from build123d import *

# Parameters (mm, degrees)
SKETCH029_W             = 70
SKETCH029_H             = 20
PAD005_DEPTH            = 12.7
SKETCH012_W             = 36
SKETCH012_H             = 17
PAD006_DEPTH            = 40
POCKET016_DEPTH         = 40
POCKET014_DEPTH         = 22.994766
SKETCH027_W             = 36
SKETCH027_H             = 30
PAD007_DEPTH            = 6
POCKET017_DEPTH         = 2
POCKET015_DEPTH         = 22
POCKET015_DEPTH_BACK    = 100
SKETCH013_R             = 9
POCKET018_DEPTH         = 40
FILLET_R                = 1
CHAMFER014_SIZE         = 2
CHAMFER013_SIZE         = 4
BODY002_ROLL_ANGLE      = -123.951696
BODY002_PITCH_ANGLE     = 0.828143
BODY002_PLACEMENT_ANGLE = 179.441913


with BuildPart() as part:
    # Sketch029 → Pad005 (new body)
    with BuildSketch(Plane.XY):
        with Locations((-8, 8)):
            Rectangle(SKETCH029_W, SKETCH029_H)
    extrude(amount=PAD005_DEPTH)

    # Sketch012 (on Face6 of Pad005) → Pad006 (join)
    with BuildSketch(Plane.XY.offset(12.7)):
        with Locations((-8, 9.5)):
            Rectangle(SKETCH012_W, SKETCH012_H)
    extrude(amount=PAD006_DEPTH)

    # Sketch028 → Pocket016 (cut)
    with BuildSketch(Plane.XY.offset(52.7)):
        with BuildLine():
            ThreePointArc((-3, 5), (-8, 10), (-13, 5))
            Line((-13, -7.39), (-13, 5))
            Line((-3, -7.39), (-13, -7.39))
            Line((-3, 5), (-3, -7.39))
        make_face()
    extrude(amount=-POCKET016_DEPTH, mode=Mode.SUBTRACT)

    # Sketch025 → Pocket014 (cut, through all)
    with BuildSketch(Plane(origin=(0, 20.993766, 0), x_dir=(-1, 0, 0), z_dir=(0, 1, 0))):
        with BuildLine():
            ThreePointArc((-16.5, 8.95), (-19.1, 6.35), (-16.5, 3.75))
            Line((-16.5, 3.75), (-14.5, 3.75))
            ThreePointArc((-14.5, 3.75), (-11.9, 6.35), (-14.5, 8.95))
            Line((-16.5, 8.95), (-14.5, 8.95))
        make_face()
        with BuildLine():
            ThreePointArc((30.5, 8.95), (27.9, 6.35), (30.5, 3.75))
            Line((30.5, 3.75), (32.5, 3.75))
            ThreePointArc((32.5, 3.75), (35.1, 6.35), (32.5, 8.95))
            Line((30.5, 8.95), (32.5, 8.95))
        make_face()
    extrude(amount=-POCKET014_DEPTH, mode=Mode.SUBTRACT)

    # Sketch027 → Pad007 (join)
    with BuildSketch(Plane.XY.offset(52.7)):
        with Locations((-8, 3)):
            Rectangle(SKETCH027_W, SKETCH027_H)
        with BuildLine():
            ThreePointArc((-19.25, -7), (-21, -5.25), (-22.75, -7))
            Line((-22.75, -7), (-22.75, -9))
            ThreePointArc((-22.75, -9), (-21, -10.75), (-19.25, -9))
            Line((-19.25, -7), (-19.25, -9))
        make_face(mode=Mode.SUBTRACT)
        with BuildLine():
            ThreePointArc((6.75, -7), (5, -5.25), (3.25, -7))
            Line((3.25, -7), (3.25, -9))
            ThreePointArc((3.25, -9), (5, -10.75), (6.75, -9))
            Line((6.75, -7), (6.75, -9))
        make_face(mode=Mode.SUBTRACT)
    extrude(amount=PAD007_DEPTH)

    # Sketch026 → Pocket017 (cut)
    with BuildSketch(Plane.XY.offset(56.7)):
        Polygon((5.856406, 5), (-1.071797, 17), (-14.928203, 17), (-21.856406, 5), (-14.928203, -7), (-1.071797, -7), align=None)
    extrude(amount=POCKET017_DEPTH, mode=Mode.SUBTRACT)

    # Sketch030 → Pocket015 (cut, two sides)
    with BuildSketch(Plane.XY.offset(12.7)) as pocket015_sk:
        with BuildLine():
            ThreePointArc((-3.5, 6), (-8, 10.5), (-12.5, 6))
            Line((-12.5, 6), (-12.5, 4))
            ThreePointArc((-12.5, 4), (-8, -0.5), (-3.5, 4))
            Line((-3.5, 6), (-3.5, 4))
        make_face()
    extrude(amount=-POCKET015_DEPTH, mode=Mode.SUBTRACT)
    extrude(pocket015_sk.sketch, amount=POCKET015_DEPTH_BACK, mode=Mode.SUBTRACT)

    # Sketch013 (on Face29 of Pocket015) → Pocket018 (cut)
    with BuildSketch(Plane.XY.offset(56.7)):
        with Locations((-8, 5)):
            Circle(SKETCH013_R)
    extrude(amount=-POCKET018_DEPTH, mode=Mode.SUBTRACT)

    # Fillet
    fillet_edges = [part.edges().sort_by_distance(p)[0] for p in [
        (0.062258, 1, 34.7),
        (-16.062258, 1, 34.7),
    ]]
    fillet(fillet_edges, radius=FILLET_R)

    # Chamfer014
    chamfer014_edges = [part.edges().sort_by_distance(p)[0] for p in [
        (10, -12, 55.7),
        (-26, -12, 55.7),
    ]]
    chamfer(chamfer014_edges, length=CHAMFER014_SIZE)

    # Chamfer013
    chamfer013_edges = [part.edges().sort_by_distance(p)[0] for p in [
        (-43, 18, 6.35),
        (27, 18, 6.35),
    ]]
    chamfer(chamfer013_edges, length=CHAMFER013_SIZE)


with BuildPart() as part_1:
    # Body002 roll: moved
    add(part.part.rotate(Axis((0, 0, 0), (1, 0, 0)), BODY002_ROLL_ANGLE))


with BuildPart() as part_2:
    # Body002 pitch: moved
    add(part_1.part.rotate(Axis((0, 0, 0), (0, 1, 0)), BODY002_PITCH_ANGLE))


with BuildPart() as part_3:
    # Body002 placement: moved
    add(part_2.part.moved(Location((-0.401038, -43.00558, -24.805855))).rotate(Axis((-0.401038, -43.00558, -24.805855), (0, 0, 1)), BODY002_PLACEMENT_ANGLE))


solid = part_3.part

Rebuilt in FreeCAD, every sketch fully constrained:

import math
import FreeCAD as App
import Part
import Sketcher
Q = App.Units.Quantity


def edges_at(feature, points):
    """Names of the edges that pass closest to the given points."""
    edges = feature.Shape.Edges
    near = lambda p: min(range(len(edges)), key=lambda i: edges[i].distToShape(Part.Vertex(*p))[0])
    return sorted({f"Edge{near(p) + 1}" for p in points})


def add_polygon(sketch, points):
    """Adds a closed chain of lines whose ends are joined by coincident constraints."""
    first, n = sketch.GeometryCount, len(points)
    for a, b in zip(points, points[1:] + points[:1]):
        sketch.addGeometry(Part.LineSegment(App.Vector(*a, 0), App.Vector(*b, 0)), False)
    for i in range(n):
        sketch.addConstraint(Sketcher.Constraint("Coincident", first + i, 2, first + (i + 1) % n, 1))

doc = App.newDocument("Part")
params = doc.addObject("Spreadsheet::Sheet", "Params")
for row, (alias, value) in enumerate([
    ("sketch1_width", "70 mm"),
    ("sketch1_height", "20 mm"),
    ("pad1_length", "12.7 mm"),
    ("sketch2_width", "36 mm"),
    ("sketch2_height", "17 mm"),
    ("pad2_length", "40 mm"),
    ("sketch3_radius", "5 mm"),
    ("sketch3_height", "12.39 mm"),
    ("pocket1_length", "40 mm"),
    ("sketch4_radius", "2.6 mm"),
    ("sketch4_width", "2 mm"),
    ("sketch5_width", "36 mm"),
    ("sketch5_height", "30 mm"),
    ("sketch5_height2", "2 mm"),
    ("sketch5_radius", "1.75 mm"),
    ("pad3_length", "6 mm"),
    ("pocket3_length", "2 mm"),
    ("sketch7_radius", "4.5 mm"),
    ("sketch7_height", "2 mm"),
    ("sketch8_diameter", "18 mm"),
    ("pocket5_length", "40 mm"),
    ("fillet_radius", "1 mm"),
    ("chamfer_size", "2 mm"),
    ("chamfer2_size", "4 mm"),
], start=1):
    params.set(f"A{row}", alias)
    params.set(f"B{row}", "=" + value)
    params.setAlias(f"B{row}", alias)

body = doc.addObject("PartDesign::Body", "Body")

# Sketch on XY plane
sketch1 = body.newObject("Sketcher::SketchObject", "Sketch")
sketch1.AttachmentSupport = (doc.getObject("XY_Plane"), [""])
sketch1.MapMode = "FlatFace"
add_polygon(sketch1, [(-43, 18), (-43, -2), (27, -2), (27, 18)])  # lines 0-3
sketch1.addConstraint([
    Sketcher.Constraint("Vertical", 0),
    Sketcher.Constraint("Horizontal", 1),
    Sketcher.Constraint("Vertical", 2),
    Sketcher.Constraint("Horizontal", 3),
    Sketcher.Constraint("DistanceX", 1, 1, 1, 2, 70.0),
    Sketcher.Constraint("DistanceY", 0, 2, 0, 1, 20.0),
    Sketcher.Constraint("DistanceX", 0, 2, -1, 1, 43.0),
    Sketcher.Constraint("DistanceY", 0, 2, -1, 1, 2.0),
])
sketch1.setExpression("Constraints[8]", "Params.sketch1_width")
sketch1.setExpression("Constraints[9]", "Params.sketch1_height")
pad1 = body.newObject("PartDesign::Pad", "Pad")
pad1.Profile = sketch1
pad1.setExpression("Length", "Params.pad1_length")

# Sketch on XY plane
sketch2 = body.newObject("Sketcher::SketchObject", "Sketch001")
sketch2.AttachmentSupport = (doc.getObject("XY_Plane"), [""])
sketch2.MapMode = "FlatFace"
sketch2.AttachmentOffset = App.Placement(App.Vector(0, 0, 12.7), App.Rotation())
add_polygon(sketch2, [(-26, 18), (-26, 1), (10, 1), (10, 18)])  # lines 0-3
sketch2.addConstraint([
    Sketcher.Constraint("Vertical", 0),
    Sketcher.Constraint("Horizontal", 1),
    Sketcher.Constraint("Vertical", 2),
    Sketcher.Constraint("Horizontal", 3),
    Sketcher.Constraint("DistanceX", 1, 1, 1, 2, 36.0),
    Sketcher.Constraint("DistanceY", 0, 2, 0, 1, 17.0),
    Sketcher.Constraint("DistanceX", 0, 2, -1, 1, 26.0),
    Sketcher.Constraint("DistanceY", -1, 1, 0, 2, 1.0),
])
sketch2.setExpression("Constraints[8]", "Params.sketch2_width")
sketch2.setExpression("Constraints[9]", "Params.sketch2_height")
pad2 = body.newObject("PartDesign::Pad", "Pad001")
pad2.Profile = sketch2
pad2.setExpression("Length", "Params.pad2_length")

# Sketch on XY plane
sketch3 = body.newObject("Sketcher::SketchObject", "Sketch002")
sketch3.AttachmentSupport = (doc.getObject("XY_Plane"), [""])
sketch3.MapMode = "FlatFace"
sketch3.AttachmentOffset = App.Placement(App.Vector(0, 0, 52.7), App.Rotation())
sketch3.addGeometry([
    Part.ArcOfCircle(Part.Circle(App.Vector(-8, 5, 0), App.Vector(0, 0, 1), 5), math.radians(0), math.radians(180)),
    Part.LineSegment(App.Vector(-13, 5, 0), App.Vector(-13, -7, 0)),
    Part.LineSegment(App.Vector(-13, -7, 0), App.Vector(-3, -7, 0)),
    Part.LineSegment(App.Vector(-3, -7, 0), App.Vector(-3, 5, 0)),
], False)
sketch3.addConstraint([
    Sketcher.Constraint("Tangent", 0, 2, 1, 1),
    Sketcher.Constraint("Coincident", 1, 2, 2, 1),
    Sketcher.Constraint("Coincident", 2, 2, 3, 1),
    Sketcher.Constraint("Tangent", 3, 2, 0, 1),
    Sketcher.Constraint("Vertical", 1),
    Sketcher.Constraint("Horizontal", 2),
    Sketcher.Constraint("Vertical", 3),
    Sketcher.Constraint("Radius", 0, 5.0),
    Sketcher.Constraint("DistanceX", 0, 3, -1, 1, 8.0),
    Sketcher.Constraint("DistanceY", -1, 1, 0, 3, 5.0),
    Sketcher.Constraint("DistanceY", 1, 2, 1, 1, 12.39),
])
sketch3.setExpression("Constraints[7]", "Params.sketch3_radius")
sketch3.setExpression("Constraints[10]", "Params.sketch3_height")
pocket1 = body.newObject("PartDesign::Pocket", "Pocket")
pocket1.Profile = sketch3
pocket1.setExpression("Length", "Params.pocket1_length")

# Sketch on XZ plane
sketch4 = body.newObject("Sketcher::SketchObject", "Sketch003")
sketch4.AttachmentSupport = (doc.getObject("XZ_Plane"), [""])
sketch4.MapMode = "FlatFace"
sketch4.AttachmentOffset = App.Placement(App.Vector(0, 0, -20.993766), App.Rotation())
sketch4.addGeometry([
    Part.ArcOfCircle(Part.Circle(App.Vector(16.5, 6.3, 0), App.Vector(0, 0, 1), 2.6), math.radians(-90), math.radians(90)),  # 0
    Part.LineSegment(App.Vector(16.5, 3.8, 0), App.Vector(14.5, 3.8, 0)),  # 1
    Part.ArcOfCircle(Part.Circle(App.Vector(14.5, 6.3, 0), App.Vector(0, 0, 1), 2.6), math.radians(90), math.radians(270)),  # 2
    Part.LineSegment(App.Vector(14.5, 8.9, 0), App.Vector(16.5, 8.9, 0)),  # 3
    Part.ArcOfCircle(Part.Circle(App.Vector(-30.5, 6.3, 0), App.Vector(0, 0, 1), 2.6), math.radians(-90), math.radians(90)),  # 4
    Part.LineSegment(App.Vector(-30.5, 3.8, 0), App.Vector(-32.5, 3.8, 0)),  # 5
    Part.ArcOfCircle(Part.Circle(App.Vector(-32.5, 6.3, 0), App.Vector(0, 0, 1), 2.6), math.radians(90), math.radians(270)),  # 6
    Part.LineSegment(App.Vector(-32.5, 8.9, 0), App.Vector(-30.5, 8.9, 0)),  # 7
], False)
sketch4.addConstraint([
    Sketcher.Constraint("Tangent", 0, 1, 1, 1),
    Sketcher.Constraint("Tangent", 1, 2, 2, 2),
    Sketcher.Constraint("Tangent", 2, 1, 3, 1),
    Sketcher.Constraint("Tangent", 3, 2, 0, 2),
    Sketcher.Constraint("Tangent", 4, 1, 5, 1),
    Sketcher.Constraint("Tangent", 5, 2, 6, 2),
    Sketcher.Constraint("Tangent", 6, 1, 7, 1),
    Sketcher.Constraint("Tangent", 7, 2, 4, 2),
    Sketcher.Constraint("Horizontal", 1),
    Sketcher.Constraint("Horizontal", 3),
    Sketcher.Constraint("Horizontal", 5),
    Sketcher.Constraint("Horizontal", 7),
    Sketcher.Constraint("Equal", 2, 4),
    Sketcher.Constraint("Horizontal", 2, 3, 4, 3),
    Sketcher.Constraint("Equal", 3, 5),
    Sketcher.Constraint("Radius", 0, 2.6),
    Sketcher.Constraint("DistanceX", 1, 2, 1, 1, 2.0),
    Sketcher.Constraint("DistanceX", 4, 3, 2, 3, 45.0),
    Sketcher.Constraint("DistanceX", -1, 1, 0, 3, 16.5),
    Sketcher.Constraint("DistanceY", -1, 1, 0, 3, 6.35),
])
sketch4.setExpression("Constraints[15]", "Params.sketch4_radius")
sketch4.setExpression("Constraints[16]", "Params.sketch4_width")
pocket2 = body.newObject("PartDesign::Pocket", "Pocket001")
pocket2.Profile = sketch4
pocket2.Type = "ThroughAll"
pocket2.Reversed = True

# Sketch on XY plane
sketch5 = body.newObject("Sketcher::SketchObject", "Sketch004")
sketch5.AttachmentSupport = (doc.getObject("XY_Plane"), [""])
sketch5.MapMode = "FlatFace"
sketch5.AttachmentOffset = App.Placement(App.Vector(0, 0, 52.7), App.Rotation())
add_polygon(sketch5, [(-26, 18), (-26, -12), (10, -12), (10, 18)])  # lines 0-3
sketch5.addGeometry(Part.ArcOfCircle(Part.Circle(App.Vector(-21, -7, 0), App.Vector(0, 0, 1), 1.8), math.radians(0), math.radians(180)), False)  # 4
sketch5.addGeometry(Part.LineSegment(App.Vector(-19.2, -7, 0), App.Vector(-19.2, -9, 0)), False)  # 5
sketch5.addGeometry(Part.ArcOfCircle(Part.Circle(App.Vector(-21, -9, 0), App.Vector(0, 0, 1), 1.8), math.radians(180), math.radians(360)), False)  # 6
sketch5.addGeometry(Part.LineSegment(App.Vector(-22.8, -9, 0), App.Vector(-22.8, -7, 0)), False)  # 7
sketch5.addGeometry(Part.ArcOfCircle(Part.Circle(App.Vector(5, -7, 0), App.Vector(0, 0, 1), 1.8), math.radians(0), math.radians(180)), False)  # 8
sketch5.addGeometry(Part.LineSegment(App.Vector(6.8, -7, 0), App.Vector(6.8, -9, 0)), False)  # 9
sketch5.addGeometry(Part.ArcOfCircle(Part.Circle(App.Vector(5, -9, 0), App.Vector(0, 0, 1), 1.8), math.radians(180), math.radians(360)), False)  # 10
sketch5.addGeometry(Part.LineSegment(App.Vector(3.2, -9, 0), App.Vector(3.2, -7, 0)), False)  # 11
sketch5.addConstraint([
    Sketcher.Constraint("Tangent", 4, 1, 5, 1),
    Sketcher.Constraint("Tangent", 5, 2, 6, 2),
    Sketcher.Constraint("Tangent", 6, 1, 7, 1),
    Sketcher.Constraint("Tangent", 7, 2, 4, 2),
    Sketcher.Constraint("Tangent", 8, 1, 9, 1),
    Sketcher.Constraint("Tangent", 9, 2, 10, 2),
    Sketcher.Constraint("Tangent", 10, 1, 11, 1),
    Sketcher.Constraint("Tangent", 11, 2, 8, 2),
    Sketcher.Constraint("Vertical", 0),
    Sketcher.Constraint("Horizontal", 1),
    Sketcher.Constraint("Vertical", 2),
    Sketcher.Constraint("Horizontal", 3),
    Sketcher.Constraint("Vertical", 5),
    Sketcher.Constraint("Vertical", 7),
    Sketcher.Constraint("Vertical", 9),
    Sketcher.Constraint("Vertical", 11),
    Sketcher.Constraint("Equal", 6, 8),
    Sketcher.Constraint("Horizontal", 4, 3, 8, 3),
    Sketcher.Constraint("Horizontal", 6, 3, 10, 3),
    Sketcher.Constraint("DistanceX", 1, 1, 1, 2, 36.0),
    Sketcher.Constraint("DistanceY", 0, 2, 0, 1, 30.0),
    Sketcher.Constraint("DistanceY", 5, 2, 5, 1, 2.0),
    Sketcher.Constraint("Radius", 4, 1.75),
    Sketcher.Constraint("DistanceX", 4, 3, -1, 1, 21.0),
    Sketcher.Constraint("DistanceY", 4, 3, -1, 1, 7.0),
    Sketcher.Constraint("DistanceX", -1, 1, 8, 3, 5.0),
    Sketcher.Constraint("DistanceX", 0, 2, -1, 1, 26.0),
    Sketcher.Constraint("DistanceY", 0, 2, -1, 1, 12.0),
])
sketch5.setExpression("Constraints[23]", "Params.sketch5_width")
sketch5.setExpression("Constraints[24]", "Params.sketch5_height")
sketch5.setExpression("Constraints[25]", "Params.sketch5_height2")
sketch5.setExpression("Constraints[26]", "Params.sketch5_radius")
pad3 = body.newObject("PartDesign::Pad", "Pad002")
pad3.Profile = sketch5
pad3.setExpression("Length", "Params.pad3_length")

# Sketch on XY plane
sketch6 = body.newObject("Sketcher::SketchObject", "Sketch005")
sketch6.AttachmentSupport = (doc.getObject("XY_Plane"), [""])
sketch6.MapMode = "FlatFace"
sketch6.AttachmentOffset = App.Placement(App.Vector(0, 0, 56.7), App.Rotation())
add_polygon(sketch6, [(6, 5), (-1, 17), (-15, 17), (-22, 5), (-15, -7), (-1, -7)])  # lines 0-5
sketch6.addConstraint([
    Sketcher.Constraint("Horizontal", 1),
    Sketcher.Constraint("Horizontal", 4),
    Sketcher.Constraint("Parallel", 0, 3),
    Sketcher.Constraint("Parallel", 2, 5),
    Sketcher.Constraint("Horizontal", 2, 2, 5, 2),
    Sketcher.Constraint("Vertical", 1, 2, 3, 2),
    Sketcher.Constraint("Vertical", 0, 2, 4, 2),
    Sketcher.Constraint("Angle", 0, Q("119.999999 deg")),
    Sketcher.Constraint("DistanceY", -1, 1, 0, 2, 17.0),
    Sketcher.Constraint("DistanceY", -1, 1, 2, 2, 5.0),
    Sketcher.Constraint("DistanceX", 1, 2, 1, 1, 13.856406),
    Sketcher.Constraint("DistanceX", 0, 2, -1, 1, 1.071797),
])
pocket3 = body.newObject("PartDesign::Pocket", "Pocket002")
pocket3.Profile = sketch6
pocket3.setExpression("Length", "Params.pocket3_length")
pocket3.Reversed = True

# Sketch on XY plane
sketch7 = body.newObject("Sketcher::SketchObject", "Sketch006")
sketch7.AttachmentSupport = (doc.getObject("XY_Plane"), [""])
sketch7.MapMode = "FlatFace"
sketch7.AttachmentOffset = App.Placement(App.Vector(0, 0, 12.7), App.Rotation())
sketch7.addGeometry([
    Part.ArcOfCircle(Part.Circle(App.Vector(-8, 6, 0), App.Vector(0, 0, 1), 4.5), math.radians(0), math.radians(180)),
    Part.LineSegment(App.Vector(-12.5, 6, 0), App.Vector(-12.5, 4, 0)),
    Part.ArcOfCircle(Part.Circle(App.Vector(-8, 4, 0), App.Vector(0, 0, 1), 4.5), math.radians(180), math.radians(360)),
    Part.LineSegment(App.Vector(-3.5, 4, 0), App.Vector(-3.5, 6, 0)),
], False)
sketch7.addConstraint([
    Sketcher.Constraint("Tangent", 0, 2, 1, 1),
    Sketcher.Constraint("Tangent", 1, 2, 2, 1),
    Sketcher.Constraint("Tangent", 2, 2, 3, 1),
    Sketcher.Constraint("Tangent", 3, 2, 0, 1),
    Sketcher.Constraint("Vertical", 1),
    Sketcher.Constraint("Vertical", 3),
    Sketcher.Constraint("Radius", 0, 4.5),
    Sketcher.Constraint("DistanceY", 1, 2, 1, 1, 2.0),
    Sketcher.Constraint("DistanceX", 0, 3, -1, 1, 8.0),
    Sketcher.Constraint("DistanceY", -1, 1, 0, 3, 6.0),
])
sketch7.setExpression("Constraints[6]", "Params.sketch7_radius")
sketch7.setExpression("Constraints[7]", "Params.sketch7_height")
pocket4 = body.newObject("PartDesign::Pocket", "Pocket003")
pocket4.Profile = sketch7
pocket4.Type = "ThroughAll"
pocket4.Midplane = True

# Sketch on XY plane
sketch8 = body.newObject("Sketcher::SketchObject", "Sketch007")
sketch8.AttachmentSupport = (doc.getObject("XY_Plane"), [""])
sketch8.MapMode = "FlatFace"
sketch8.AttachmentOffset = App.Placement(App.Vector(0, 0, 56.7), App.Rotation())
sketch8.addGeometry(Part.Circle(App.Vector(-8, 5, 0), App.Vector(0, 0, 1), 9), False)
sketch8.addConstraint([
    Sketcher.Constraint("Diameter", 0, 18.0),
    Sketcher.Constraint("DistanceX", 0, 3, -1, 1, 8.0),
    Sketcher.Constraint("DistanceY", -1, 1, 0, 3, 5.0),
])
sketch8.setExpression("Constraints[0]", "Params.sketch8_diameter")
pocket5 = body.newObject("PartDesign::Pocket", "Pocket004")
pocket5.Profile = sketch8
pocket5.setExpression("Length", "Params.pocket5_length")
doc.recompute()

fillet = body.newObject("PartDesign::Fillet", "Fillet")
fillet.Base = (pocket5, edges_at(pocket5, [(0.062, 1, 34.7), (-16.062, 1, 34.7)]))
fillet.setExpression("Radius", "Params.fillet_radius")
doc.recompute()

chamfer = body.newObject("PartDesign::Chamfer", "Chamfer")
chamfer.Base = (fillet, edges_at(fillet, [(10, -12, 55.7), (-26, -12, 55.7)]))
chamfer.setExpression("Size", "Params.chamfer_size")
doc.recompute()

chamfer2 = body.newObject("PartDesign::Chamfer", "Chamfer001")
chamfer2.Base = (chamfer, edges_at(chamfer, [(-43, 18, 6.35), (27, 18, 6.35)]))
chamfer2.setExpression("Size", "Params.chamfer2_size")
body2 = doc.addObject("PartDesign::Body", "Body001")
doc.recompute()

body.Placement = App.Placement(App.Vector(0, 0, 0), App.Rotation(App.Vector(1, 0, 0), 236.048304))
boolean = body2.newObject("PartDesign::Boolean", "Boolean")
boolean.Type = "Fuse"
boolean.addObjects([body])
body3 = doc.addObject("PartDesign::Body", "Body002")
doc.recompute()

body2.Placement = App.Placement(App.Vector(0, 0, 0), App.Rotation(App.Vector(0, 1, 0), 0.828143))
boolean2 = body3.newObject("PartDesign::Boolean", "Boolean001")
boolean2.Type = "Fuse"
boolean2.addObjects([body2])
body4 = doc.addObject("PartDesign::Body", "Body003")
doc.recompute()

body3.Placement = App.Placement(App.Vector(-0.401038, -43.00558, -24.805855), App.Rotation(App.Vector(0, 0, 1), 179.441913))
boolean3 = body4.newObject("PartDesign::Boolean", "Boolean002")
boolean3.Type = "Fuse"
boolean3.addObjects([body3])

doc.recompute()
